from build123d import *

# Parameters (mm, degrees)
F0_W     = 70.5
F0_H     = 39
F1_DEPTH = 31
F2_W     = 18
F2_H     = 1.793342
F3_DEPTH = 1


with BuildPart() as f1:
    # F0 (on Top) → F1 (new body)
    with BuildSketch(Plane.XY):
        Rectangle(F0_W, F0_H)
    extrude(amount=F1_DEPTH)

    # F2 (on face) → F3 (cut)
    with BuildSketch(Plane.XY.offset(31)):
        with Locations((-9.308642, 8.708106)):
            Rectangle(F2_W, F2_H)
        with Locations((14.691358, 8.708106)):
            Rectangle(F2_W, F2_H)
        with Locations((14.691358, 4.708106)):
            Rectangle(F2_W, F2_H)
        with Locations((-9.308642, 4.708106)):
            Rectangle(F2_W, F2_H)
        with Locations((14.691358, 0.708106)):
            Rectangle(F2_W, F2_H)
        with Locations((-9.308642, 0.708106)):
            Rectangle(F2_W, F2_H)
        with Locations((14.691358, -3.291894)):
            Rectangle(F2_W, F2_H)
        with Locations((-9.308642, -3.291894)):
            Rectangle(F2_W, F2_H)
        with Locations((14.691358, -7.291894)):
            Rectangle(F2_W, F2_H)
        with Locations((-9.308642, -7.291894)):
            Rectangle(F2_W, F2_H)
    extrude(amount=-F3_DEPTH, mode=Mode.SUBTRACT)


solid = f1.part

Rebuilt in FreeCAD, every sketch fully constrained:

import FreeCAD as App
import Part
import Sketcher

V = App.Vector

doc = App.newDocument("Part")
params = doc.addObject("Spreadsheet::Sheet", "Params")
for row, (alias, value) in enumerate([
    ("sketch1_height", "39 mm"),
    ("sketch1_width", "70.5 mm"),
    ("pad1_length", "31 mm"),
    ("sketch2_width", "18 mm"),
    ("pocket1_length", "1 mm"),
], start=1):
    params.set(f"A{row}", alias)
    params.set(f"B{row}", "=" + value)
    params.setAlias(f"B{row}", alias)

body = doc.addObject("PartDesign::Body", "Body")

sketch1 = doc.addObject("Sketcher::SketchObject", "Sketch")
body.addObject(sketch1)
sketch1.AttachmentSupport = (doc.XY_Plane, [""])
sketch1.MapMode = "FlatFace"
sketch1.addGeometry([
    Part.LineSegment(V(-35.25, 19.5, 0), V(-35.25, -19.5, 0)),
    Part.LineSegment(V(-35.25, -19.5, 0), V(35.25, -19.5, 0)),
    Part.LineSegment(V(35.25, -19.5, 0), V(35.25, 19.5, 0)),
    Part.LineSegment(V(35.25, 19.5, 0), V(-35.25, 19.5, 0)),
], False)
sketch1.addConstraint([
    Sketcher.Constraint("Coincident", 0, 2, 1, 1),
    Sketcher.Constraint("Coincident", 1, 2, 2, 1),
    Sketcher.Constraint("Coincident", 2, 2, 3, 1),
    Sketcher.Constraint("Coincident", 3, 2, 0, 1),
    Sketcher.Constraint("Vertical", 0),
    Sketcher.Constraint("Horizontal", 1),
    Sketcher.Constraint("Vertical", 2),
    Sketcher.Constraint("Horizontal", 3),
    Sketcher.Constraint("Symmetric", 0, 2, 2, 2, -1, 1),
    Sketcher.Constraint("DistanceY", 0, 2, 0, 1, 39.0),
    Sketcher.Constraint("DistanceX", 1, 1, 1, 2, 70.5),
])
sketch1.setExpression("Constraints[9]", "Params.sketch1_height")
sketch1.setExpression("Constraints[10]", "Params.sketch1_width")
pad1 = doc.addObject("PartDesign::Pad", "Pad")
body.addObject(pad1)
pad1.Profile = sketch1
pad1.setExpression("Length", "Params.pad1_length")

sketch2 = doc.addObject("Sketcher::SketchObject", "Sketch001")
body.addObject(sketch2)
sketch2.AttachmentSupport = (doc.XY_Plane, [""])
sketch2.MapMode = "FlatFace"
sketch2.AttachmentOffset = App.Placement(V(0, 0, 31), App.Rotation())
sketch2.addGeometry([
    Part.LineSegment(V(-18.308642, 9.604777, 0), V(-18.308642, 7.811435, 0)),
    Part.LineSegment(V(-18.308642, 7.811435, 0), V(-0.308642, 7.811435, 0)),
    Part.LineSegment(V(-0.308642, 7.811435, 0), V(-0.308642, 9.604777, 0)),
    Part.LineSegment(V(-0.308642, 9.604777, 0), V(-18.308642, 9.604777, 0)),
    Part.LineSegment(V(5.691358, 9.604777, 0), V(5.691358, 7.811435, 0)),
    Part.LineSegment(V(5.691358, 7.811435, 0), V(23.691358, 7.811435, 0)),
    Part.LineSegment(V(23.691358, 7.811435, 0), V(23.691358, 9.604777, 0)),
    Part.LineSegment(V(23.691358, 9.604777, 0), V(5.691358, 9.604777, 0)),
    Part.LineSegment(V(5.691358, 5.604777, 0), V(5.691358, 3.811435, 0)),
    Part.LineSegment(V(5.691358, 3.811435, 0), V(23.691358, 3.811435, 0)),
    Part.LineSegment(V(23.691358, 3.811435, 0), V(23.691358, 5.604777, 0)),
    Part.LineSegment(V(23.691358, 5.604777, 0), V(5.691358, 5.604777, 0)),
    Part.LineSegment(V(-18.308642, 5.604777, 0), V(-18.308642, 3.811435, 0)),
    Part.LineSegment(V(-18.308642, 3.811435, 0), V(-0.308642, 3.811435, 0)),
    Part.LineSegment(V(-0.308642, 3.811435, 0), V(-0.308642, 5.604777, 0)),
    Part.LineSegment(V(-0.308642, 5.604777, 0), V(-18.308642, 5.604777, 0)),
    Part.LineSegment(V(5.691358, 1.604777, 0), V(5.691358, -0.188565, 0)),
    Part.LineSegment(V(5.691358, -0.188565, 0), V(23.691358, -0.188565, 0)),
    Part.LineSegment(V(23.691358, -0.188565, 0), V(23.691358, 1.604777, 0)),
    Part.LineSegment(V(23.691358, 1.604777, 0), V(5.691358, 1.604777, 0)),
    Part.LineSegment(V(-18.308642, 1.604777, 0), V(-18.308642, -0.188565, 0)),
    Part.LineSegment(V(-18.308642, -0.188565, 0), V(-0.308642, -0.188565, 0)),
    Part.LineSegment(V(-0.308642, -0.188565, 0), V(-0.308642, 1.604777, 0)),
    Part.LineSegment(V(-0.308642, 1.604777, 0), V(-18.308642, 1.604777, 0)),
    Part.LineSegment(V(5.691358, -2.395223, 0), V(5.691358, -4.188565, 0)),
    Part.LineSegment(V(5.691358, -4.188565, 0), V(23.691358, -4.188565, 0)),
    Part.LineSegment(V(23.691358, -4.188565, 0), V(23.691358, -2.395223, 0)),
    Part.LineSegment(V(23.691358, -2.395223, 0), V(5.691358, -2.395223, 0)),
    Part.LineSegment(V(-18.308642, -2.395223, 0), V(-18.308642, -4.188565, 0)),
    Part.LineSegment(V(-18.308642, -4.188565, 0), V(-0.308642, -4.188565, 0)),
    Part.LineSegment(V(-0.308642, -4.188565, 0), V(-0.308642, -2.395223, 0)),
    Part.LineSegment(V(-0.308642, -2.395223, 0), V(-18.308642, -2.395223, 0)),
    Part.LineSegment(V(5.691358, -6.395223, 0), V(5.691358, -8.188565, 0)),
    Part.LineSegment(V(5.691358, -8.188565, 0), V(23.691358, -8.188565, 0)),
    Part.LineSegment(V(23.691358, -8.188565, 0), V(23.691358, -6.395223, 0)),
    Part.LineSegment(V(23.691358, -6.395223, 0), V(5.691358, -6.395223, 0)),
    Part.LineSegment(V(-18.308642, -6.395223, 0), V(-18.308642, -8.188565, 0)),
    Part.LineSegment(V(-18.308642, -8.188565, 0), V(-0.308642, -8.188565, 0)),
    Part.LineSegment(V(-0.308642, -8.188565, 0), V(-0.308642, -6.395223, 0)),
    Part.LineSegment(V(-0.308642, -6.395223, 0), V(-18.308642, -6.395223, 0)),
], False)
sketch2.addConstraint([
    Sketcher.Constraint("Coincident", 0, 2, 1, 1),
    Sketcher.Constraint("Coincident", 1, 2, 2, 1),
    Sketcher.Constraint("Coincident", 2, 2, 3, 1),
    Sketcher.Constraint("Coincident", 3, 2, 0, 1),
    Sketcher.Constraint("Coincident", 4, 2, 5, 1),
    Sketcher.Constraint("Coincident", 5, 2, 6, 1),
    Sketcher.Constraint("Coincident", 6, 2, 7, 1),
    Sketcher.Constraint("Coincident", 7, 2, 4, 1),
    Sketcher.Constraint("Coincident", 8, 2, 9, 1),
    Sketcher.Constraint("Coincident", 9, 2, 10, 1),
    Sketcher.Constraint("Coincident", 10, 2, 11, 1),
    Sketcher.Constraint("Coincident", 11, 2, 8, 1),
    Sketcher.Constraint("Coincident", 12, 2, 13, 1),
    Sketcher.Constraint("Coincident", 13, 2, 14, 1),
    Sketcher.Constraint("Coincident", 14, 2, 15, 1),
    Sketcher.Constraint("Coincident", 15, 2, 12, 1),
    Sketcher.Constraint("Coincident", 16, 2, 17, 1),
    Sketcher.Constraint("Coincident", 17, 2, 18, 1),
    Sketcher.Constraint("Coincident", 18, 2, 19, 1),
    Sketcher.Constraint("Coincident", 19, 2, 16, 1),
    Sketcher.Constraint("Coincident", 20, 2, 21, 1),
    Sketcher.Constraint("Coincident", 21, 2, 22, 1),
    Sketcher.Constraint("Coincident", 22, 2, 23, 1),
    Sketcher.Constraint("Coincident", 23, 2, 20, 1),
    Sketcher.Constraint("Coincident", 24, 2, 25, 1),
    Sketcher.Constraint("Coincident", 25, 2, 26, 1),
    Sketcher.Constraint("Coincident", 26, 2, 27, 1),
    Sketcher.Constraint("Coincident", 27, 2, 24, 1),
    Sketcher.Constraint("Coincident", 28, 2, 29, 1),
    Sketcher.Constraint("Coincident", 29, 2, 30, 1),
    Sketcher.Constraint("Coincident", 30, 2, 31, 1),
    Sketcher.Constraint("Coincident", 31, 2, 28, 1),
    Sketcher.Constraint("Coincident", 32, 2, 33, 1),
    Sketcher.Constraint("Coincident", 33, 2, 34, 1),
    Sketcher.Constraint("Coincident", 34, 2, 35, 1),
    Sketcher.Constraint("Coincident", 35, 2, 32, 1),
    Sketcher.Constraint("Coincident", 36, 2, 37, 1),
    Sketcher.Constraint("Coincident", 37, 2, 38, 1),
    Sketcher.Constraint("Coincident", 38, 2, 39, 1),
    Sketcher.Constraint("Coincident", 39, 2, 36, 1),
    Sketcher.Constraint("Vertical", 0),
    Sketcher.Constraint("Horizontal", 1),
    Sketcher.Constraint("Vertical", 2),
    Sketcher.Constraint("Horizontal", 3),
    Sketcher.Constraint("Vertical", 4),
    Sketcher.Constraint("Horizontal", 5),
    Sketcher.Constraint("Vertical", 6),
    Sketcher.Constraint("Horizontal", 7),
    Sketcher.Constraint("Vertical", 8),
    Sketcher.Constraint("Horizontal", 9),
    Sketcher.Constraint("Vertical", 10),
    Sketcher.Constraint("Horizontal", 11),
    Sketcher.Constraint("Vertical", 12),
    Sketcher.Constraint("Horizontal", 13),
    Sketcher.Constraint("Vertical", 14),
    Sketcher.Constraint("Horizontal", 15),
    Sketcher.Constraint("Vertical", 16),
    Sketcher.Constraint("Horizontal", 17),
    Sketcher.Constraint("Vertical", 18),
    Sketcher.Constraint("Horizontal", 19),
    Sketcher.Constraint("Vertical", 20),
    Sketcher.Constraint("Horizontal", 21),
    Sketcher.Constraint("Vertical", 22),
    Sketcher.Constraint("Horizontal", 23),
    Sketcher.Constraint("Vertical", 24),
    Sketcher.Constraint("Horizontal", 25),
    Sketcher.Constraint("Vertical", 26),
    Sketcher.Constraint("Horizontal", 27),
    Sketcher.Constraint("Vertical", 28),
    Sketcher.Constraint("Horizontal", 29),
    Sketcher.Constraint("Vertical", 30),
    Sketcher.Constraint("Horizontal", 31),
    Sketcher.Constraint("Vertical", 32),
    Sketcher.Constraint("Horizontal", 33),
    Sketcher.Constraint("Vertical", 34),
    Sketcher.Constraint("Horizontal", 35),
    Sketcher.Constraint("Vertical", 36),
    Sketcher.Constraint("Horizontal", 37),
    Sketcher.Constraint("Vertical", 38),
    Sketcher.Constraint("Horizontal", 39),
    Sketcher.Constraint("Horizontal", 1, 2, 4, 2),
    Sketcher.Constraint("Horizontal", 3, 2, 6, 2),
    Sketcher.Constraint("Horizontal", 9, 2, 12, 2),
    Sketcher.Constraint("Horizontal", 11, 2, 14, 2),
    Sketcher.Constraint("Horizontal", 17, 2, 20, 2),
    Sketcher.Constraint("Horizontal", 19, 2, 22, 2),
    Sketcher.Constraint("Horizontal", 25, 2, 28, 2),
    Sketcher.Constraint("Horizontal", 27, 2, 30, 2),
    Sketcher.Constraint("Horizontal", 33, 2, 36, 2),
    Sketcher.Constraint("Horizontal", 35, 2, 38, 2),
    Sketcher.Constraint("Vertical", 7, 2, 8, 2),
    Sketcher.Constraint("Vertical", 6, 2, 9, 2),
    Sketcher.Constraint("Vertical", 3, 2, 12, 2),
    Sketcher.Constraint("Vertical", 2, 2, 13, 2),
    Sketcher.Constraint("Vertical", 11, 2, 16, 2),
    Sketcher.Constraint("Vertical", 10, 2, 17, 2),
    Sketcher.Constraint("Vertical", 15, 2, 20, 2),
    Sketcher.Constraint("Vertical", 14, 2, 21, 2),
    Sketcher.Constraint("Vertical", 19, 2, 24, 2),
    Sketcher.Constraint("Vertical", 18, 2, 25, 2),
    Sketcher.Constraint("Vertical", 23, 2, 28, 2),
    Sketcher.Constraint("Vertical", 22, 2, 29, 2),
    Sketcher.Constraint("Vertical", 27, 2, 32, 2),
    Sketcher.Constraint("Vertical", 26, 2, 33, 2),
    Sketcher.Constraint("Vertical", 31, 2, 36, 2),
    Sketcher.Constraint("Vertical", 30, 2, 37, 2),
    Sketcher.Constraint("Equal", 3, 5),
    Sketcher.Constraint("Equal", 6, 8),
    Sketcher.Constraint("Equal", 14, 16),
    Sketcher.Constraint("Equal", 22, 24),
    Sketcher.Constraint("Equal", 30, 32),
    Sketcher.Constraint("DistanceX", 1, 1, 1, 2, 18.0),
    Sketcher.Constraint("DistanceX", 1, 2, 4, 2, 6.0),
    Sketcher.Constraint("DistanceY", 8, 2, 4, 2, 4.0),
    Sketcher.Constraint("DistanceY", 16, 2, 8, 2, 4.0),
    Sketcher.Constraint("DistanceY", 24, 2, 16, 2, 4.0),
    Sketcher.Constraint("DistanceY", 32, 2, 24, 2, 4.0),
    Sketcher.Constraint("DistanceY", 24, 2, 24, 1, 1.793342),
    Sketcher.Constraint("DistanceX", 0, 2, -1, 1, 18.308642),
    Sketcher.Constraint("DistanceY", -1, 1, 0, 2, 7.811435),
])
sketch2.setExpression("Constraints[111]", "Params.sketch2_width")
pocket1 = doc.addObject("PartDesign::Pocket", "Pocket")
body.addObject(pocket1)
pocket1.Profile = sketch2
pocket1.setExpression("Length", "Params.pocket1_length")

doc.recompute()
